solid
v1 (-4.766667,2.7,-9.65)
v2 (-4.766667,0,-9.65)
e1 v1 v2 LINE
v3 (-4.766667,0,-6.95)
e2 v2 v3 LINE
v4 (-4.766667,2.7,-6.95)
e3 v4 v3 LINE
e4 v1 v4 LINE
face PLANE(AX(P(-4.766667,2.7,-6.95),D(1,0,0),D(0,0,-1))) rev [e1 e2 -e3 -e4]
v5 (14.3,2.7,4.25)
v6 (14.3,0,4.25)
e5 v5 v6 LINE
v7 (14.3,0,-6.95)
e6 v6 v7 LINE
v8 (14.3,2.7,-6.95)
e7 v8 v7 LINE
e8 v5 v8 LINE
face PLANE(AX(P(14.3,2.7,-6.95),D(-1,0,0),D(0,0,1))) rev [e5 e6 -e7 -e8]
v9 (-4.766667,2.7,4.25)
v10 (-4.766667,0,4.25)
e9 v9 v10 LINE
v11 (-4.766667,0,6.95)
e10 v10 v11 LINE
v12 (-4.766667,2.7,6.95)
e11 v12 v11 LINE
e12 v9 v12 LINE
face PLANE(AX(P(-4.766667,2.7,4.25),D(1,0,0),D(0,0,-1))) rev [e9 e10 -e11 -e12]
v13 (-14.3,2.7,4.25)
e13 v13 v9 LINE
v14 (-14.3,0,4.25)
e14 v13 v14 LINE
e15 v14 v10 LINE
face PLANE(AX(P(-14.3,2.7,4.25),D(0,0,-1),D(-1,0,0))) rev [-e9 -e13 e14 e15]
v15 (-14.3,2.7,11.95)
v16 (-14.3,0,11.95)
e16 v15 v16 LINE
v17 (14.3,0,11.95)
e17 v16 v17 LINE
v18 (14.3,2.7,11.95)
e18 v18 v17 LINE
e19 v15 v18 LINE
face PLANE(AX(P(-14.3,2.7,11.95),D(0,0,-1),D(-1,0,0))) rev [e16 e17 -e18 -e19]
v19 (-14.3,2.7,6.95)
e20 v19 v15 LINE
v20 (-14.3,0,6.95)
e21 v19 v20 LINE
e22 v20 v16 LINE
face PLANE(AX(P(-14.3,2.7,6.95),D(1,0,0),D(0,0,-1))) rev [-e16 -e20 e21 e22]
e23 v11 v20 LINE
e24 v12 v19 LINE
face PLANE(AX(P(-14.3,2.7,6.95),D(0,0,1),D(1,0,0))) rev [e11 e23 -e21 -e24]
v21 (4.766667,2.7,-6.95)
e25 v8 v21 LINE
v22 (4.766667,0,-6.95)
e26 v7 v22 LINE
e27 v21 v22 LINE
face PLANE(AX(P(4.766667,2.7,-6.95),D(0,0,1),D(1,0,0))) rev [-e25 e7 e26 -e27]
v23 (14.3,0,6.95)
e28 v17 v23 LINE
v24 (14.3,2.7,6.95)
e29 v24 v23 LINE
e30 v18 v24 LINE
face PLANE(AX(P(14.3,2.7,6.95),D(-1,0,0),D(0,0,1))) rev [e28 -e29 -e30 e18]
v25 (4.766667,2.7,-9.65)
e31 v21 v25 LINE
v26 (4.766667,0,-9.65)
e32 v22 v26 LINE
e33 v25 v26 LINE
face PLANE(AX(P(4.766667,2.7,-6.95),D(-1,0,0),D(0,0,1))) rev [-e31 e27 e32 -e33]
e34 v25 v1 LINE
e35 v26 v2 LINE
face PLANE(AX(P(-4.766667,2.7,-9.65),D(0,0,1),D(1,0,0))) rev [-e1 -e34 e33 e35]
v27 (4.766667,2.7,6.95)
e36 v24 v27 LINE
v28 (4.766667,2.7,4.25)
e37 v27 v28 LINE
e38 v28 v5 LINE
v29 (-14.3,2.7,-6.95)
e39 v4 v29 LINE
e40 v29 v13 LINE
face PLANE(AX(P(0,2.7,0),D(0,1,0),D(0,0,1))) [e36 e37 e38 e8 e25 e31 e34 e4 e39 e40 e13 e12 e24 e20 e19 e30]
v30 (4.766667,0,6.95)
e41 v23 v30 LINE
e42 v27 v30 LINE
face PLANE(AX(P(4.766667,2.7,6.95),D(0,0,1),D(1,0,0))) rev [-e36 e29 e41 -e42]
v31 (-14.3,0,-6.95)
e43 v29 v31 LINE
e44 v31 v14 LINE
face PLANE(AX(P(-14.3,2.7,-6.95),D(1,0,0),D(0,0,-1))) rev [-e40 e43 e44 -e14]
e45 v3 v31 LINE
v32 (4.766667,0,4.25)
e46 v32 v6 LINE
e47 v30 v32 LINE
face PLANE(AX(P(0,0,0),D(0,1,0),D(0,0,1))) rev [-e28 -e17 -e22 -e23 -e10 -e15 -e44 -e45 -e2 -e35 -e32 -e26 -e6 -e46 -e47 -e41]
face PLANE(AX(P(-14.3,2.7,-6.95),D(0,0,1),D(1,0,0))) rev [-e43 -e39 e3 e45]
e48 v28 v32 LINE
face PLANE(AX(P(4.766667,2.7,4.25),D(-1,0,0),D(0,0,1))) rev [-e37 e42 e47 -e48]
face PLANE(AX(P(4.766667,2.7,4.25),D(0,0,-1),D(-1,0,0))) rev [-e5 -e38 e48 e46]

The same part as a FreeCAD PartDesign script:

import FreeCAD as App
import Part
import Sketcher
from FreeCAD import Vector

doc = App.newDocument("Part")
body = doc.addObject("PartDesign::Body", "Body")

# Sketch on XZ plane
sketch1 = body.newObject("Sketcher::SketchObject", "Sketch")
sketch1.AttachmentSupport = (doc.getObject("XZ_Plane"), [""])
sketch1.MapMode = "FlatFace"
sketch1.addGeometry(Part.LineSegment(Vector(-4.8, 7, 0), Vector(-14.3, 7, 0)), False)
sketch1.addGeometry(Part.LineSegment(Vector(-14.3, 7, 0), Vector(-14.3, 11.9, 0)), False)
sketch1.addGeometry(Part.LineSegment(Vector(-14.3, 11.9, 0), Vector(14.3, 11.9, 0)), False)
sketch1.addGeometry(Part.LineSegment(Vector(14.3, 11.9, 0), Vector(14.3, 7, 0)), False)
sketch1.addGeometry(Part.LineSegment(Vector(14.3, 7, 0), Vector(4.8, 7, 0)), False)
sketch1.addGeometry(Part.LineSegment(Vector(4.8, 7, 0), Vector(4.8, 4.2, 0)), False)
sketch1.addGeometry(Part.LineSegment(Vector(4.8, 4.2, 0), Vector(14.3, 4.2, 0)), False)
sketch1.addGeometry(Part.LineSegment(Vector(14.3, 4.2, 0), Vector(14.3, -7, 0)), False)
sketch1.addGeometry(Part.LineSegment(Vector(14.3, -7, 0), Vector(4.8, -7, 0)), False)
sketch1.addGeometry(Part.LineSegment(Vector(4.8, -7, 0), Vector(4.8, -9.7, 0)), False)
sketch1.addGeometry(Part.LineSegment(Vector(4.8, -9.7, 0), Vector(-4.8, -9.7, 0)), False)
sketch1.addGeometry(Part.LineSegment(Vector(-4.8, -9.7, 0), Vector(-4.8, -7, 0)), False)
sketch1.addGeometry(Part.LineSegment(Vector(-4.8, -7, 0), Vector(-14.3, -7, 0)), False)
sketch1.addGeometry(Part.LineSegment(Vector(-14.3, -7, 0), Vector(-14.3, 4.2, 0)), False)
sketch1.addGeometry(Part.LineSegment(Vector(-14.3, 4.2, 0), Vector(-4.8, 4.2, 0)), False)
sketch1.addGeometry(Part.LineSegment(Vector(-4.8, 4.2, 0), Vector(-4.8, 7, 0)), False)
sketch1.addConstraint(Sketcher.Constraint("Coincident", 0, 2, 1, 1))
sketch1.addConstraint(Sketcher.Constraint("Coincident", 1, 2, 2, 1))
sketch1.addConstraint(Sketcher.Constraint("Coincident", 2, 2, 3, 1))
sketch1.addConstraint(Sketcher.Constraint("Coincident", 3, 2, 4, 1))
sketch1.addConstraint(Sketcher.Constraint("Coincident", 4, 2, 5, 1))
sketch1.addConstraint(Sketcher.Constraint("Coincident", 5, 2, 6, 1))
sketch1.addConstraint(Sketcher.Constraint("Coincident", 6, 2, 7, 1))
sketch1.addConstraint(Sketcher.Constraint("Coincident", 7, 2, 8, 1))
sketch1.addConstraint(Sketcher.Constraint("Coincident", 8, 2, 9, 1))
sketch1.addConstraint(Sketcher.Constraint("Coincident", 9, 2, 10, 1))
sketch1.addConstraint(Sketcher.Constraint("Coincident", 10, 2, 11, 1))
sketch1.addConstraint(Sketcher.Constraint("Coincident", 11, 2, 12, 1))
sketch1.addConstraint(Sketcher.Constraint("Coincident", 12, 2, 13, 1))
sketch1.addConstraint(Sketcher.Constraint("Coincident", 13, 2, 14, 1))
sketch1.addConstraint(Sketcher.Constraint("Coincident", 14, 2, 15, 1))
sketch1.addConstraint(Sketcher.Constraint("Coincident", 15, 2, 0, 1))
sketch1.addConstraint(Sketcher.Constraint("Horizontal", 0))
sketch1.addConstraint(Sketcher.Constraint("Vertical", 1))
sketch1.addConstraint(Sketcher.Constraint("Horizontal", 2))
sketch1.addConstraint(Sketcher.Constraint("Vertical", 3))
sketch1.addConstraint(Sketcher.Constraint("Horizontal", 4))
sketch1.addConstraint(Sketcher.Constraint("Vertical", 5))
sketch1.addConstraint(Sketcher.Constraint("Horizontal", 6))
sketch1.addConstraint(Sketcher.Constraint("Vertical", 7))
sketch1.addConstraint(Sketcher.Constraint("Horizontal", 8))
sketch1.addConstraint(Sketcher.Constraint("Vertical", 9))
sketch1.addConstraint(Sketcher.Constraint("Horizontal", 10))
sketch1.addConstraint(Sketcher.Constraint("Vertical", 11))
sketch1.addConstraint(Sketcher.Constraint("Horizontal", 12))
sketch1.addConstraint(Sketcher.Constraint("Vertical", 13))
sketch1.addConstraint(Sketcher.Constraint("Horizontal", 14))
sketch1.addConstraint(Sketcher.Constraint("Vertical", 15))
sketch1.addConstraint(Sketcher.Constraint("Symmetric", 0, 2, 7, 2, -1, 1))
sketch1.addConstraint(Sketcher.Constraint("Symmetric", 4, 2, 11, 2, -1, 1))
sketch1.addConstraint(Sketcher.Constraint("Symmetric", 0, 2, 3, 2, -2))
sketch1.addConstraint(Sketcher.Constraint("Symmetric", 6, 2, 13, 2, -2))
sketch1.addConstraint(Sketcher.Constraint("Vertical", 5, 2, 8, 2))
sketch1.addConstraint(Sketcher.Constraint("Vertical", 11, 2, 14, 2))
sketch1.addConstraint(Sketcher.Constraint("Equal", 8, 10))
sketch1.addConstraint(Sketcher.Constraint("Equal", 5, 9))
sketch1.addConstraint(Sketcher.Constraint("DistanceY", 1, 1, 1, 2, 5.0))
sketch1.addConstraint(Sketcher.Constraint("DistanceX", 2, 1, 2, 2, 28.6))
sketch1.addConstraint(Sketcher.Constraint("DistanceY", 5, 2, 5, 1, 2.7))
sketch1.addConstraint(Sketcher.Constraint("DistanceY", 7, 2, 7, 1, 11.2))
pad1 = body.newObject("PartDesign::Pad", "Pad")
pad1.Profile = sketch1
pad1.Length = 2.7
pad1.Reversed = True

doc.recompute()
